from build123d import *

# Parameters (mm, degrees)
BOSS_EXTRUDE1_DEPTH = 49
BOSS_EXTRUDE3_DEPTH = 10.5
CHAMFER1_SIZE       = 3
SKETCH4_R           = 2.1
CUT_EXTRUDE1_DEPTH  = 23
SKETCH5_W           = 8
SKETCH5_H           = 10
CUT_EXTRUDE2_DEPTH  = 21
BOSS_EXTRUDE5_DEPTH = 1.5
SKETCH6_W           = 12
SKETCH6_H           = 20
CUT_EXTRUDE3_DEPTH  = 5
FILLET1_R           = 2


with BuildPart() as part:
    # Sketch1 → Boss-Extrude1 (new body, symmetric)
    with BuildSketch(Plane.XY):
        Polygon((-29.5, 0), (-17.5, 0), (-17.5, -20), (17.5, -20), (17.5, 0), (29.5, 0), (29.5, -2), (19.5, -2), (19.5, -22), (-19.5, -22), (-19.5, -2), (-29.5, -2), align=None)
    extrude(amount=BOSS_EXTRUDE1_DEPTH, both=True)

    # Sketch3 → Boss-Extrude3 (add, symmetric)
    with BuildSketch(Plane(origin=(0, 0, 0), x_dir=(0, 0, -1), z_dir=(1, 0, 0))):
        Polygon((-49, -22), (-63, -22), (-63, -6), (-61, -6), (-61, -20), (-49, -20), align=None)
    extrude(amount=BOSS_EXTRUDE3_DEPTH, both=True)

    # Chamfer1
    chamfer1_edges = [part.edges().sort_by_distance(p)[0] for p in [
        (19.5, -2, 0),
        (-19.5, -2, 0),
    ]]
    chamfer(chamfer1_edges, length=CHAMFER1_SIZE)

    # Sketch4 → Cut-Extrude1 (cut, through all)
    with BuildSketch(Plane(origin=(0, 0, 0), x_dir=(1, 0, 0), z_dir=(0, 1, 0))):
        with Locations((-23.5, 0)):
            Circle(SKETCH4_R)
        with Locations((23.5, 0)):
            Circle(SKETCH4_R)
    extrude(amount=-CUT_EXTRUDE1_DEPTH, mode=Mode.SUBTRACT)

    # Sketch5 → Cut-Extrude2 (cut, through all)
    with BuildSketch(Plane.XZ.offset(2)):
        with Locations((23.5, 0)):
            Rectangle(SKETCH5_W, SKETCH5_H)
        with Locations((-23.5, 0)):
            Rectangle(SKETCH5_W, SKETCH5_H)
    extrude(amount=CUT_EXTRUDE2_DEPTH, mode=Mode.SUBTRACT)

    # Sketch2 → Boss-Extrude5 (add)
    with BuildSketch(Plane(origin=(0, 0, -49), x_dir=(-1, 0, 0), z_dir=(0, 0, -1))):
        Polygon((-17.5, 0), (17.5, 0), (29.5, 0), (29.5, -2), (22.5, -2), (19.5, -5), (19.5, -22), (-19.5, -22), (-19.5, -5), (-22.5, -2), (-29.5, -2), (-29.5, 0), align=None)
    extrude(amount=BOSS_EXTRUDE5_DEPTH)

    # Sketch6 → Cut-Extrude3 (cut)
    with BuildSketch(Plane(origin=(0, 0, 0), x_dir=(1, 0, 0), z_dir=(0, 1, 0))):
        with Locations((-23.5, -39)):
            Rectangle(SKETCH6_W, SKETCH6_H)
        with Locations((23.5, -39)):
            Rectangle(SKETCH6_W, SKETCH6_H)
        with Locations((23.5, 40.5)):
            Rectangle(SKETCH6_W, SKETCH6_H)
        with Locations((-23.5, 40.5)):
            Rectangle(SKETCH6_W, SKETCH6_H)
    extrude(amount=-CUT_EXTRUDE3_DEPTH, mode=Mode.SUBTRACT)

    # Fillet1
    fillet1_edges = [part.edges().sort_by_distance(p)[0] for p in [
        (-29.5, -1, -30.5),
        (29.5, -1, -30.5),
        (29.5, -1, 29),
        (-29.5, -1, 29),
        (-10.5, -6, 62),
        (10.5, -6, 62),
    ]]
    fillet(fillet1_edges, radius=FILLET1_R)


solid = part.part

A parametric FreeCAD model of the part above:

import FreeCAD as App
import Part
import Sketcher

V = App.Vector
Q = App.Units.Quantity


def edges_at(feature, points):
    """Names of the edges that pass closest to the given points."""
    edges = feature.Shape.Edges
    near = lambda p: min(range(len(edges)), key=lambda i: edges[i].distToShape(Part.Vertex(*p))[0])
    return sorted({f"Edge{near(p) + 1}" for p in points})


def add_polygon(sketch, points):
    """Adds a closed chain of lines whose ends are joined by coincident constraints."""
    first, n = sketch.GeometryCount, len(points)
    for a, b in zip(points, points[1:] + points[:1]):
        sketch.addGeometry(Part.LineSegment(App.Vector(*a, 0), App.Vector(*b, 0)), False)
    for i in range(n):
        sketch.addConstraint(Sketcher.Constraint("Coincident", first + i, 2, first + (i + 1) % n, 1))

doc = App.newDocument("Part")
body = doc.addObject("PartDesign::Body", "Body")

# Sketch on XY plane
sketch1 = doc.addObject("Sketcher::SketchObject", "Sketch")
body.addObject(sketch1)
sketch1.AttachmentSupport = (doc.XY_Plane, [""])
sketch1.MapMode = "FlatFace"
add_polygon(sketch1, [(-17.5, 0), (-29.5, 0), (-29.5, -2), (-19.5, -2), (-19.5, -22), (19.5, -22), (19.5, -2), (29.5, -2), (29.5, 0), (17.5, 0), (17.5, -20), (-17.5, -20)])  # lines 0-11
sketch1.addConstraint(Sketcher.Constraint("Horizontal", 0))
sketch1.addConstraint(Sketcher.Constraint("Vertical", 1))
sketch1.addConstraint(Sketcher.Constraint("Horizontal", 2))
sketch1.addConstraint(Sketcher.Constraint("Vertical", 3))
sketch1.addConstraint(Sketcher.Constraint("Horizontal", 4))
sketch1.addConstraint(Sketcher.Constraint("Vertical", 5))
sketch1.addConstraint(Sketcher.Constraint("Horizontal", 6))
sketch1.addConstraint(Sketcher.Constraint("Vertical", 7))
sketch1.addConstraint(Sketcher.Constraint("Horizontal", 8))
sketch1.addConstraint(Sketcher.Constraint("Vertical", 9))
sketch1.addConstraint(Sketcher.Constraint("Horizontal", 10))
sketch1.addConstraint(Sketcher.Constraint("Vertical", 11))
sketch1.addConstraint(Sketcher.Constraint("Symmetric", 0, 2, 7, 2, -1, 1))
sketch1.addConstraint(Sketcher.Constraint("Symmetric", 2, 2, 5, 2, -2))
sketch1.addConstraint(Sketcher.Constraint("Symmetric", 8, 2, 11, 2, -2))
sketch1.addConstraint(Sketcher.Constraint("Equal", 5, 9))
sketch1.addConstraint(Sketcher.Constraint("DistanceX", 0, 2, 0, 1, Q("12 mm")))
sketch1.addConstraint(Sketcher.Constraint("DistanceX", 2, 1, 2, 2, Q("10 mm")))
sketch1.addConstraint(Sketcher.Constraint("DistanceX", 4, 1, 4, 2, Q("39 mm")))
sketch1.addConstraint(Sketcher.Constraint("DistanceY", 1, 2, 1, 1, Q("2 mm")))
sketch1.addConstraint(Sketcher.Constraint("DistanceY", 3, 2, 3, 1, Q("20 mm")))
pad1 = doc.addObject("PartDesign::Pad", "Pad")
body.addObject(pad1)
pad1.Profile = sketch1
pad1.Length = 98
pad1.Midplane = True

# Sketch on YZ plane
sketch2 = doc.addObject("Sketcher::SketchObject", "Sketch001")
body.addObject(sketch2)
sketch2.AttachmentSupport = (doc.YZ_Plane, [""])
sketch2.MapMode = "FlatFace"
add_polygon(sketch2, [(-22, 63), (-22, 49), (-20, 49), (-20, 61), (-6, 61), (-6, 63)])  # lines 0-5
sketch2.addConstraint(Sketcher.Constraint("Vertical", 0))
sketch2.addConstraint(Sketcher.Constraint("Horizontal", 1))
sketch2.addConstraint(Sketcher.Constraint("Vertical", 2))
sketch2.addConstraint(Sketcher.Constraint("Horizontal", 3))
sketch2.addConstraint(Sketcher.Constraint("Vertical", 4))
sketch2.addConstraint(Sketcher.Constraint("Horizontal", 5))
sketch2.addConstraint(Sketcher.Constraint("Equal", 3, 0))
sketch2.addConstraint(Sketcher.Constraint("Equal", 1, 4))
sketch2.addConstraint(Sketcher.Constraint("DistanceX", 1, 1, 1, 2, Q("2 mm")))
sketch2.addConstraint(Sketcher.Constraint("DistanceX", 3, 1, 3, 2, Q("14 mm")))
sketch2.addConstraint(Sketcher.Constraint("DistanceX", 0, 2, -1, 1, Q("22 mm")))
sketch2.addConstraint(Sketcher.Constraint("DistanceY", -1, 1, 0, 2, Q("49 mm")))
pad2 = doc.addObject("PartDesign::Pad", "Pad001")
body.addObject(pad2)
pad2.Profile = sketch2
pad2.Length = 21
pad2.Midplane = True
doc.recompute()

chamfer = doc.addObject("PartDesign::Chamfer", "Chamfer")
body.addObject(chamfer)
chamfer.Base = (pad2, edges_at(pad2, [(19.5, -2, 0), (-19.5, -2, 0)]))
chamfer.Size = 3

# Sketch on XZ plane
sketch3 = doc.addObject("Sketcher::SketchObject", "Sketch002")
body.addObject(sketch3)
sketch3.AttachmentSupport = (doc.XZ_Plane, [""])
sketch3.MapMode = "FlatFace"
sketch3.addGeometry(Part.Circle(V(-23.5, 0, 0), V(0, 0, 1), 2.1), False)
sketch3.addGeometry(Part.Circle(V(23.5, 0, 0), V(0, 0, 1), 2.1), False)
sketch3.addConstraint(Sketcher.Constraint("Equal", 0, 1))
sketch3.addConstraint(Sketcher.Constraint("Symmetric", 0, 3, 1, 3, -1, 1))
sketch3.addConstraint(Sketcher.Constraint("PointOnObject", 0, 3, -1))
sketch3.addConstraint(Sketcher.Constraint("Diameter", 0, Q("4.2 mm")))
sketch3.addConstraint(Sketcher.Constraint("DistanceX", 0, 3, 1, 3, Q("47 mm")))
pocket1 = doc.addObject("PartDesign::Pocket", "Pocket")
body.addObject(pocket1)
pocket1.Profile = sketch3
pocket1.Type = "ThroughAll"
pocket1.Reversed = True

# Sketch on XZ plane
sketch4 = doc.addObject("Sketcher::SketchObject", "Sketch003")
body.addObject(sketch4)
sketch4.AttachmentSupport = (doc.XZ_Plane, [""])
sketch4.MapMode = "FlatFace"
sketch4.AttachmentOffset = App.Placement(V(0, 0, 2), App.Rotation())
add_polygon(sketch4, [(20, 5), (20, -5), (28, -5), (28, 5)])  # lines 0-3
add_polygon(sketch4, [(-28, 5), (-28, -5), (-20, -5), (-20, 5)])  # lines 4-7
sketch4.addConstraint(Sketcher.Constraint("Vertical", 0))
sketch4.addConstraint(Sketcher.Constraint("Horizontal", 1))
sketch4.addConstraint(Sketcher.Constraint("Vertical", 2))
sketch4.addConstraint(Sketcher.Constraint("Horizontal", 3))
sketch4.addConstraint(Sketcher.Constraint("Vertical", 4))
sketch4.addConstraint(Sketcher.Constraint("Horizontal", 5))
sketch4.addConstraint(Sketcher.Constraint("Vertical", 6))
sketch4.addConstraint(Sketcher.Constraint("Horizontal", 7))
sketch4.addConstraint(Sketcher.Constraint("Symmetric", 2, 2, 4, 2, -1, 1))
sketch4.addConstraint(Sketcher.Constraint("Symmetric", 0, 2, 6, 2, -1, 1))
sketch4.addConstraint(Sketcher.Constraint("Horizontal", 1, 2, 4, 2))
sketch4.addConstraint(Sketcher.Constraint("DistanceX", 1, 1, 1, 2, Q("8 mm")))
sketch4.addConstraint(Sketcher.Constraint("DistanceY", 0, 2, 0, 1, Q("10 mm")))
sketch4.addConstraint(Sketcher.Constraint("DistanceX", 4, 2, 0, 2, Q("47 mm")))
pocket2 = doc.addObject("PartDesign::Pocket", "Pocket001")
body.addObject(pocket2)
pocket2.Profile = sketch4
pocket2.Type = "ThroughAll"
pocket2.Reversed = True

# Sketch on XY plane
sketch5 = doc.addObject("Sketcher::SketchObject", "Sketch004")
body.addObject(sketch5)
sketch5.AttachmentSupport = (doc.XY_Plane, [""])
sketch5.MapMode = "FlatFace"
sketch5.AttachmentOffset = App.Placement(V(0, 0, -49), App.Rotation())
add_polygon(sketch5, [(-29.5, 0), (29.5, 0), (29.5, -2), (22.5, -2), (19.5, -5), (19.5, -22), (-19.5, -22), (-19.5, -5), (-22.5, -2), (-29.5, -2)])  # lines 0-9
sketch5.addConstraint(Sketcher.Constraint("Horizontal", 0))
sketch5.addConstraint(Sketcher.Constraint("Vertical", 1))
sketch5.addConstraint(Sketcher.Constraint("Horizontal", 2))
sketch5.addConstraint(Sketcher.Constraint("Vertical", 4))
sketch5.addConstraint(Sketcher.Constraint("Horizontal", 5))
sketch5.addConstraint(Sketcher.Constraint("Vertical", 6))
sketch5.addConstraint(Sketcher.Constraint("Horizontal", 8))
sketch5.addConstraint(Sketcher.Constraint("Vertical", 9))
sketch5.addConstraint(Sketcher.Constraint("Symmetric", 0, 2, 9, 2, -1, 1))
sketch5.addConstraint(Sketcher.Constraint("Symmetric", 3, 2, 6, 2, -2))
sketch5.addConstraint(Sketcher.Constraint("Symmetric", 2, 2, 7, 2, -2))
sketch5.addConstraint(Sketcher.Constraint("Perpendicular", 3, 7))
sketch5.addConstraint(Sketcher.Constraint("DistanceX", 0, 1, 0, 2, Q("59 mm")))
sketch5.addConstraint(Sketcher.Constraint("DistanceX", 2, 2, 2, 1, Q("7 mm")))
sketch5.addConstraint(Sketcher.Constraint("DistanceX", 5, 2, 5, 1, Q("39 mm")))
sketch5.addConstraint(Sketcher.Constraint("DistanceY", 1, 2, 1, 1, Q("2 mm")))
sketch5.addConstraint(Sketcher.Constraint("DistanceY", 4, 2, 4, 1, Q("17 mm")))
pad3 = doc.addObject("PartDesign::Pad", "Pad002")
body.addObject(pad3)
pad3.Profile = sketch5
pad3.Length = 1.5
pad3.Reversed = True

# Sketch on XZ plane
sketch6 = doc.addObject("Sketcher::SketchObject", "Sketch005")
body.addObject(sketch6)
sketch6.AttachmentSupport = (doc.XZ_Plane, [""])
sketch6.MapMode = "FlatFace"
add_polygon(sketch6, [(-30, 29), (-30, 49), (-18, 49), (-18, 29)])  # lines 0-3
add_polygon(sketch6, [(18, 29), (18, 49), (30, 49), (30, 29)])  # lines 4-7
add_polygon(sketch6, [(18, -50), (18, -30), (30, -30), (30, -50)])  # lines 8-11
add_polygon(sketch6, [(-30, -50), (-30, -30), (-18, -30), (-18, -50)])  # lines 12-15
sketch6.addConstraint(Sketcher.Constraint("Vertical", 0))
sketch6.addConstraint(Sketcher.Constraint("Horizontal", 1))
sketch6.addConstraint(Sketcher.Constraint("Vertical", 2))
sketch6.addConstraint(Sketcher.Constraint("Horizontal", 3))
sketch6.addConstraint(Sketcher.Constraint("Vertical", 4))
sketch6.addConstraint(Sketcher.Constraint("Horizontal", 5))
sketch6.addConstraint(Sketcher.Constraint("Vertical", 6))
sketch6.addConstraint(Sketcher.Constraint("Horizontal", 7))
sketch6.addConstraint(Sketcher.Constraint("Vertical", 8))
sketch6.addConstraint(Sketcher.Constraint("Horizontal", 9))
sketch6.addConstraint(Sketcher.Constraint("Vertical", 10))
sketch6.addConstraint(Sketcher.Constraint("Horizontal", 11))
sketch6.addConstraint(Sketcher.Constraint("Vertical", 12))
sketch6.addConstraint(Sketcher.Constraint("Horizontal", 13))
sketch6.addConstraint(Sketcher.Constraint("Vertical", 14))
sketch6.addConstraint(Sketcher.Constraint("Horizontal", 15))
sketch6.addConstraint(Sketcher.Constraint("Symmetric", 1, 2, 4, 2, -2))
sketch6.addConstraint(Sketcher.Constraint("Symmetric", 3, 2, 6, 2, -2))
sketch6.addConstraint(Sketcher.Constraint("Symmetric", 9, 2, 12, 2, -2))
sketch6.addConstraint(Sketcher.Constraint("Symmetric", 11, 2, 14, 2, -2))
sketch6.addConstraint(Sketcher.Constraint("Vertical", 7, 2, 8, 2))
sketch6.addConstraint(Sketcher.Constraint("Vertical", 6, 2, 9, 2))
sketch6.addConstraint(Sketcher.Constraint("Equal", 6, 8))
sketch6.addConstraint(Sketcher.Constraint("DistanceX", 1, 1, 1, 2, Q("12 mm")))
sketch6.addConstraint(Sketcher.Constraint("DistanceY", 0, 1, 0, 2, Q("20 mm")))
sketch6.addConstraint(Sketcher.Constraint("DistanceY", -1, 1, 0, 2, Q("49 mm")))
sketch6.addConstraint(Sketcher.Constraint("DistanceX", 1, 2, 4, 2, Q("35 mm")))
sketch6.addConstraint(Sketcher.Constraint("DistanceY", 8, 2, -1, 1, Q("30.5 mm")))
pocket3 = doc.addObject("PartDesign::Pocket", "Pocket002")
body.addObject(pocket3)
pocket3.Profile = sketch6
pocket3.Length = 5
pocket3.Reversed = True
doc.recompute()

fillet = doc.addObject("PartDesign::Fillet", "Fillet")
body.addObject(fillet)
fillet.Base = (pocket3, edges_at(pocket3, [
    (-29.5, -1, -30.5),
    (29.5, -1, -30.5),
    (29.5, -1, 29),
    (-29.5, -1, 29),
    (-10.5, -6, 62),
    (10.5, -6, 62),
]))
fillet.Radius = 2

doc.recompute()
